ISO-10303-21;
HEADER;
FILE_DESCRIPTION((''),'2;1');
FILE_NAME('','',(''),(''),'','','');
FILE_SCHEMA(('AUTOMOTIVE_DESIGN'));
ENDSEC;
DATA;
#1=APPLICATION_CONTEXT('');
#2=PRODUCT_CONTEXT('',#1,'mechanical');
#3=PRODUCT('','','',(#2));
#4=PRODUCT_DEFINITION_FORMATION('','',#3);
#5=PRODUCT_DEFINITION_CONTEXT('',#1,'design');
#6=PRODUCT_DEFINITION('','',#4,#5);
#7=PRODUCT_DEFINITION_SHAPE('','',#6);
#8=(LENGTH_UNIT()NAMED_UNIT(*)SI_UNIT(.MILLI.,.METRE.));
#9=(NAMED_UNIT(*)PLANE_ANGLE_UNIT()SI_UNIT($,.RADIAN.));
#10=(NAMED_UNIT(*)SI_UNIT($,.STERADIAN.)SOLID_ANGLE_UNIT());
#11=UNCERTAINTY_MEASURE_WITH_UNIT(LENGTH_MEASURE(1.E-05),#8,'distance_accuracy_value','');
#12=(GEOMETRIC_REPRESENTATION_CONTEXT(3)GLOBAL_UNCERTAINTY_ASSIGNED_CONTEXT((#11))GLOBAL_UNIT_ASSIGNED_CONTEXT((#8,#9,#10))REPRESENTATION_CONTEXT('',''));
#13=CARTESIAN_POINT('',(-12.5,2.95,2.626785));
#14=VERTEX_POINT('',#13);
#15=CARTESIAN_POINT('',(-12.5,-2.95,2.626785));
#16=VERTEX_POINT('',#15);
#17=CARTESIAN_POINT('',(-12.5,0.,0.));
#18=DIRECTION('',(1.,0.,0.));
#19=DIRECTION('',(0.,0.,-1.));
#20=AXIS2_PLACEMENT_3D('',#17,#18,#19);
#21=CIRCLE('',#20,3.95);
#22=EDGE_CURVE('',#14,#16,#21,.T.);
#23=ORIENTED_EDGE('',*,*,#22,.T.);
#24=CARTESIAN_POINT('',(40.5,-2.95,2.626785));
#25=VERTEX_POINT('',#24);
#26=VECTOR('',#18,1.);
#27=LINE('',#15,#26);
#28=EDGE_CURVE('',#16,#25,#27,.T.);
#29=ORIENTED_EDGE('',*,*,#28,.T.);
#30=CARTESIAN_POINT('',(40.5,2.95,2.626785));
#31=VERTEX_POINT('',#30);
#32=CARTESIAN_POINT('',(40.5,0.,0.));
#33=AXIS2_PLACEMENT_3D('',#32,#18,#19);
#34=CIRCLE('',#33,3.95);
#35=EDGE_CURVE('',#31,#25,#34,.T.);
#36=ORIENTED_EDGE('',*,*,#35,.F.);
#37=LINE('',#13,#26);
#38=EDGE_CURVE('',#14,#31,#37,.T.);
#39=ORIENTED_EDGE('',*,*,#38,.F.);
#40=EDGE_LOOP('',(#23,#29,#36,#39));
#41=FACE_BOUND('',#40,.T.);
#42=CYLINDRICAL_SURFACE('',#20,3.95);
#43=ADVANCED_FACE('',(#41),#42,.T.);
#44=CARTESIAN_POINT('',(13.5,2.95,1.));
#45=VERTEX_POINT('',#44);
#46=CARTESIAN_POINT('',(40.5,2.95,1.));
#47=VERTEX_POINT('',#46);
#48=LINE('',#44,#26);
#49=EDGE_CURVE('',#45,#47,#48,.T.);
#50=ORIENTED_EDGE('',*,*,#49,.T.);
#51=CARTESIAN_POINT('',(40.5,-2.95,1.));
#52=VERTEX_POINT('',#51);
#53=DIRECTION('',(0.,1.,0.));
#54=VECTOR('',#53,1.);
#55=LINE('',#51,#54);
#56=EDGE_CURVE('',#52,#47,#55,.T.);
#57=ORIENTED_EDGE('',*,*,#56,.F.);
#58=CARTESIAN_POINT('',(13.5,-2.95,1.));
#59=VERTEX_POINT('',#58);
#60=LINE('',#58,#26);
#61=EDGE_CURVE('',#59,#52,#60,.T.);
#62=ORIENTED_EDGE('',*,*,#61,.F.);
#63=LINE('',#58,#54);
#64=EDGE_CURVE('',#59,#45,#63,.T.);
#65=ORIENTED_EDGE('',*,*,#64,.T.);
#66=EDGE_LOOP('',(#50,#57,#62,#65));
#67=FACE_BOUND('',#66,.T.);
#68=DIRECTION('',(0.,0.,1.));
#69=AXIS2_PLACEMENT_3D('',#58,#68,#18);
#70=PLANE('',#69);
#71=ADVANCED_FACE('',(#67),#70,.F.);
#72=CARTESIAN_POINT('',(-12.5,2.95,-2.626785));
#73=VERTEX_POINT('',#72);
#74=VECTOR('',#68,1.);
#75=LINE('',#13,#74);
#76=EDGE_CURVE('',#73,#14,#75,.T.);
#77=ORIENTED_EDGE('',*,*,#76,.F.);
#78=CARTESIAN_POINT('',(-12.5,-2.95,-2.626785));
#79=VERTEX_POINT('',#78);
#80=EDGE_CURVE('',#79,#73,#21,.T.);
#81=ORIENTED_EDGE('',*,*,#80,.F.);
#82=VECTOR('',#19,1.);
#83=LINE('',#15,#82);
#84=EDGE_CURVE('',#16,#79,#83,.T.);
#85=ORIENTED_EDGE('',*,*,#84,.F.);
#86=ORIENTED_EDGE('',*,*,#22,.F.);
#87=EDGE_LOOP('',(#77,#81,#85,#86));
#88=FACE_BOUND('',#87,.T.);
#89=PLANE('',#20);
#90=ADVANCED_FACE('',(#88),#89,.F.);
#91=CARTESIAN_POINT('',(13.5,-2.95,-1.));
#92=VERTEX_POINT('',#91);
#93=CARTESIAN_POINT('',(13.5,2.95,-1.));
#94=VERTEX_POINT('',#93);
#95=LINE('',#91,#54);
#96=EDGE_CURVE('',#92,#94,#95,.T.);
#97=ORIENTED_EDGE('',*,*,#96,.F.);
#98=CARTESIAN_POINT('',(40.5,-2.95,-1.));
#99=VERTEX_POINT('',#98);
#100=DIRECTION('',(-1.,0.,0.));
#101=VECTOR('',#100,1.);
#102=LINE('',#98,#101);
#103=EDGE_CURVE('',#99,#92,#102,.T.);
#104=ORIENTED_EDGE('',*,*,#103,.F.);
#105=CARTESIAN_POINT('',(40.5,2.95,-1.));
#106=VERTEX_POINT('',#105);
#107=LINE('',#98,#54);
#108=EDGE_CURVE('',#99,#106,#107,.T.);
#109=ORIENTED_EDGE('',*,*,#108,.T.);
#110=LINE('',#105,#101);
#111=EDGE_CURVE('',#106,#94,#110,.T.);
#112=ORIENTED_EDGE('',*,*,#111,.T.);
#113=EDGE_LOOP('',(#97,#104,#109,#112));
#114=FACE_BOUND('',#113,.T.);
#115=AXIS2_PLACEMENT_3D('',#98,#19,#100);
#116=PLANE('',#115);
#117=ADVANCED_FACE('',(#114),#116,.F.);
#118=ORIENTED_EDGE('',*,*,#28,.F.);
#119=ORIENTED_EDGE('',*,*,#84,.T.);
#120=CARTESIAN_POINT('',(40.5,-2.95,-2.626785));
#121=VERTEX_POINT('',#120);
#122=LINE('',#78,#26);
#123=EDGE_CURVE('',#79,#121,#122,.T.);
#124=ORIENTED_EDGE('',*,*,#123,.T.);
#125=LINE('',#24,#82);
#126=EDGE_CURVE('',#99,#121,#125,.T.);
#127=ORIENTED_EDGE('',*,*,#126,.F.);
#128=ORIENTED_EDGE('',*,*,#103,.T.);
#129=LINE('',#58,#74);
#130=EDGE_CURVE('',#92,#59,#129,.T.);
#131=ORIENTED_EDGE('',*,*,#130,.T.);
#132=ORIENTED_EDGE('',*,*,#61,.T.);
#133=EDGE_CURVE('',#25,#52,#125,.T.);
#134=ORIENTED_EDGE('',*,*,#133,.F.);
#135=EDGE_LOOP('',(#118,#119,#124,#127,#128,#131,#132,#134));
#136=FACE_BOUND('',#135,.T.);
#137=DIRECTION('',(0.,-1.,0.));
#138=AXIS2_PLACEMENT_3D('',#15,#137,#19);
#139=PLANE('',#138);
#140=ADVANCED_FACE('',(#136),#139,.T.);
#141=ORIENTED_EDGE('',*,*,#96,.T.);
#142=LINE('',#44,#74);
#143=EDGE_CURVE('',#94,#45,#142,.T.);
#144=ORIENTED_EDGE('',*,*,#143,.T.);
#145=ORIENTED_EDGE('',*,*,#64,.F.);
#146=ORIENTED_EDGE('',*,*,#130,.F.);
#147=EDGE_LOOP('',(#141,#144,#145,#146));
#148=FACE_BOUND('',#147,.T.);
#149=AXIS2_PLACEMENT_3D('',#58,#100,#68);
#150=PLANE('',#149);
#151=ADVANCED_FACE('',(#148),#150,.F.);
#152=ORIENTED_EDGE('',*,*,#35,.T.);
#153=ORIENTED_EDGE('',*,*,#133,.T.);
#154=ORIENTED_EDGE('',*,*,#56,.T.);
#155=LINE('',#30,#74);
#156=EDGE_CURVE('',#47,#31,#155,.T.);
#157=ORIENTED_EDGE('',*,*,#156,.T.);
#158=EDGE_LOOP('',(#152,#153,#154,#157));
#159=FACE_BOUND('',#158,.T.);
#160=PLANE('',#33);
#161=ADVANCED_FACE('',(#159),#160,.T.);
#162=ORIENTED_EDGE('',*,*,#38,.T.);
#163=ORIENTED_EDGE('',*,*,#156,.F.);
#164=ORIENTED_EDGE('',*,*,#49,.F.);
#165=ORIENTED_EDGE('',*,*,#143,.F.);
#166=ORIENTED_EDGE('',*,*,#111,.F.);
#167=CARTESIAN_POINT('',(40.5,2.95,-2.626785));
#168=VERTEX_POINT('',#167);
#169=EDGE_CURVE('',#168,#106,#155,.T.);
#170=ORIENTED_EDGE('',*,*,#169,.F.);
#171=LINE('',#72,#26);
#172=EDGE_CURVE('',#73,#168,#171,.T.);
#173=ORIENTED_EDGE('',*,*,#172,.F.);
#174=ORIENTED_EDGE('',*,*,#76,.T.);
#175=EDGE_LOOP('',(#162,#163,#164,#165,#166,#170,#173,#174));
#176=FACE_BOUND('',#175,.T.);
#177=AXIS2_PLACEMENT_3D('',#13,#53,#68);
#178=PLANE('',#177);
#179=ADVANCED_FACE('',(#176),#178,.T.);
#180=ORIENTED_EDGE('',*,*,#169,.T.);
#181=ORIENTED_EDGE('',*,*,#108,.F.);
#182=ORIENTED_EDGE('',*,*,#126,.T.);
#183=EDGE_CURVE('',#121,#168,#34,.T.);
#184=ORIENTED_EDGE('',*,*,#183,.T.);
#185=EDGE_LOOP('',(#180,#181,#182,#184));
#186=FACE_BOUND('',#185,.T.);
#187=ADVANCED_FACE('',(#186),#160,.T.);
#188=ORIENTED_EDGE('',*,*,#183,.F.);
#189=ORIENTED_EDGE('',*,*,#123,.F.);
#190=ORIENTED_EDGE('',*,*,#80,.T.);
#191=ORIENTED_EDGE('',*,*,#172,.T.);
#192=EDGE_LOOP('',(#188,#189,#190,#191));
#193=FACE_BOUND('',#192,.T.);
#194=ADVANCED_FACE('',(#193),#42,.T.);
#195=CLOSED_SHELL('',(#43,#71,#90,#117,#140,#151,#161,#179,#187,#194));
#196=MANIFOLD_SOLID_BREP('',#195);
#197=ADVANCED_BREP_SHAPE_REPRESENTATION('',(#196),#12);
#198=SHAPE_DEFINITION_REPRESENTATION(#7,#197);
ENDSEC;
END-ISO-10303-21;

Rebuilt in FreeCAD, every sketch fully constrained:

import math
import FreeCAD as App
import Part
import Sketcher
Q = App.Units.Quantity


def add_polygon(sketch, points):
    """Adds a closed chain of lines whose ends are joined by coincident constraints."""
    first, n = sketch.GeometryCount, len(points)
    for a, b in zip(points, points[1:] + points[:1]):
        sketch.addGeometry(Part.LineSegment(App.Vector(*a, 0), App.Vector(*b, 0)), False)
    for i in range(n):
        sketch.addConstraint(Sketcher.Constraint("Coincident", first + i, 2, first + (i + 1) % n, 1))

doc = App.newDocument("Part")
body = doc.addObject("PartDesign::Body", "Body")

sketch1 = body.newObject("Sketcher::SketchObject", "Sketch")
sketch1.AttachmentSupport = (doc.getObject("YZ_Plane"), [""])
sketch1.MapMode = "FlatFace"
sketch1.addGeometry([
    Part.LineSegment(App.Vector(2.95, -2.626785, 0), App.Vector(2.95, 2.626785, 0)),
    Part.ArcOfCircle(Part.Circle(App.Vector(0, 0, 0), App.Vector(0, 0, 1), 3.95), math.radians(41.683007), math.radians(138.316993)),
    Part.LineSegment(App.Vector(-2.95, 2.626785, 0), App.Vector(-2.95, -2.626785, 0)),
    Part.ArcOfCircle(Part.Circle(App.Vector(0, 0, 0), App.Vector(0, 0, 1), 3.95), math.radians(-138.316993), math.radians(-41.683007)),
], False)
sketch1.addConstraint([
    Sketcher.Constraint("Coincident", 0, 2, 1, 1),
    Sketcher.Constraint("Coincident", 1, 2, 2, 1),
    Sketcher.Constraint("Coincident", 2, 2, 3, 1),
    Sketcher.Constraint("Coincident", 3, 2, 0, 1),
    Sketcher.Constraint("Vertical", 0),
    Sketcher.Constraint("Vertical", 2),
    Sketcher.Constraint("Coincident", 1, 3, -1, 1),
    Sketcher.Constraint("Coincident", 3, 3, -1, 1),
    Sketcher.Constraint("Equal", 1, 3),
    Sketcher.Constraint("Horizontal", 0, 2, 1, 2),
    Sketcher.Constraint("Radius", 1, Q("3.95 mm")),
    Sketcher.Constraint("DistanceX", 1, 2, 0, 2, Q("5.9 mm")),
])
pad1 = body.newObject("PartDesign::Pad", "Pad")
pad1.Profile = sketch1
pad1.Type = "TwoLengths"
pad1.Length = 40.5
pad1.Length2 = 12.5

sketch2 = body.newObject("Sketcher::SketchObject", "Sketch001")
sketch2.AttachmentSupport = (doc.getObject("XZ_Plane"), [""])
sketch2.MapMode = "FlatFace"
sketch2.AttachmentOffset = App.Placement(App.Vector(0, 0, -2.95), App.Rotation())
add_polygon(sketch2, [(40.5, -1), (13.5, -1), (13.5, 1), (40.5, 1)])
sketch2.addConstraint([
    Sketcher.Constraint("Horizontal", 0),
    Sketcher.Constraint("Vertical", 1),
    Sketcher.Constraint("Horizontal", 2),
    Sketcher.Constraint("Vertical", 3),
    Sketcher.Constraint("DistanceX", 0, 2, 0, 1, Q("27 mm")),
    Sketcher.Constraint("DistanceY", 1, 1, 1, 2, Q("2 mm")),
    Sketcher.Constraint("DistanceY", 0, 2, -1, 1, Q("1 mm")),
    Sketcher.Constraint("DistanceX", -1, 1, 0, 2, Q("13.5 mm")),
])
pocket1 = body.newObject("PartDesign::Pocket", "Pocket")
pocket1.Profile = sketch2
pocket1.Type = "ThroughAll"
pocket1.Reversed = True

doc.recompute()
